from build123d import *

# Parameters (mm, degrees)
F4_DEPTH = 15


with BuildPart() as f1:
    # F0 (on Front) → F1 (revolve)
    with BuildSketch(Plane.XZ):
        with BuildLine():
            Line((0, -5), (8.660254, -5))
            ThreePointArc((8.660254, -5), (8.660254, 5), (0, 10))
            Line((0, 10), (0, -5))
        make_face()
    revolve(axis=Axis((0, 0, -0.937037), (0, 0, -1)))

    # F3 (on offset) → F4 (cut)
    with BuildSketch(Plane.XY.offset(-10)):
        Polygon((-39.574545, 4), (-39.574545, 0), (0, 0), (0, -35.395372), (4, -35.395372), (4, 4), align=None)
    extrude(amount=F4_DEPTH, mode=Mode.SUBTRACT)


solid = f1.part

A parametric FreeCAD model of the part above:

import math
import FreeCAD as App
import Part
import Sketcher


def add_polygon(sketch, points):
    """Adds a closed chain of lines whose ends are joined by coincident constraints."""
    first, n = sketch.GeometryCount, len(points)
    for a, b in zip(points, points[1:] + points[:1]):
        sketch.addGeometry(Part.LineSegment(App.Vector(*a, 0), App.Vector(*b, 0)), False)
    for i in range(n):
        sketch.addConstraint(Sketcher.Constraint("Coincident", first + i, 2, first + (i + 1) % n, 1))

doc = App.newDocument("Part")
params = doc.addObject("Spreadsheet::Sheet", "Params")
for row, (alias, value) in enumerate([
    ("sketch1_radius", "10 mm"),
    ("sketch1_height", "15 mm"),
    ("revolution_angle", "360 deg"),
    ("sketch2_width", "4 mm"),
    ("pocket1_length", "15 mm"),
], start=1):
    params.set(f"A{row}", alias)
    params.set(f"B{row}", "=" + value)
    params.setAlias(f"B{row}", alias)

body = doc.addObject("PartDesign::Body", "Body")

# Sketch on XZ plane
sketch1 = doc.addObject("Sketcher::SketchObject", "Sketch")
body.addObject(sketch1)
sketch1.AttachmentSupport = (doc.XZ_Plane, [""])
sketch1.MapMode = "FlatFace"
sketch1.addGeometry([
    Part.LineSegment(App.Vector(0, -5, 0), App.Vector(9, -5, 0)),
    Part.ArcOfCircle(Part.Circle(App.Vector(0, 0, 0), App.Vector(0, 0, 1), 10), math.radians(-30), math.radians(90)),
    Part.LineSegment(App.Vector(0, 10, 0), App.Vector(0, -5, 0)),
], False)
sketch1.addConstraint([
    Sketcher.Constraint("Coincident", 0, 2, 1, 1),
    Sketcher.Constraint("Coincident", 1, 2, 2, 1),
    Sketcher.Constraint("Coincident", 2, 2, 0, 1),
    Sketcher.Constraint("Horizontal", 0),
    Sketcher.Constraint("Vertical", 2),
    Sketcher.Constraint("Coincident", 1, 3, -1, 1),
    Sketcher.Constraint("PointOnObject", 1, 2, -2),
    Sketcher.Constraint("Radius", 1, 10.0),
    Sketcher.Constraint("DistanceY", 2, 2, 2, 1, 15.0),
])
sketch1.setExpression("Constraints[7]", "Params.sketch1_radius")
sketch1.setExpression("Constraints[8]", "Params.sketch1_height")
revolution = doc.addObject("PartDesign::Revolution", "Revolution")
body.addObject(revolution)
revolution.Profile = sketch1
revolution.ReferenceAxis = (sketch1, ["V_Axis"])
revolution.setExpression("Angle", "Params.revolution_angle")

# Sketch on XY plane
sketch2 = doc.addObject("Sketcher::SketchObject", "Sketch001")
body.addObject(sketch2)
sketch2.AttachmentSupport = (doc.XY_Plane, [""])
sketch2.MapMode = "FlatFace"
sketch2.AttachmentOffset = App.Placement(App.Vector(0, 0, -10), App.Rotation())
add_polygon(sketch2, [(-39.6, 4), (-39.6, 0), (0, 0), (0, -35.4), (4, -35.4), (4, 4)])  # lines 0-5
sketch2.addConstraint([
    Sketcher.Constraint("Vertical", 0),
    Sketcher.Constraint("Horizontal", 1),
    Sketcher.Constraint("Vertical", 2),
    Sketcher.Constraint("Horizontal", 3),
    Sketcher.Constraint("Vertical", 4),
    Sketcher.Constraint("Horizontal", 5),
    Sketcher.Constraint("Coincident", 1, 2, -1, 1),
    Sketcher.Constraint("Equal", 3, 0),
    Sketcher.Constraint("DistanceX", 3, 1, 3, 2, 4.0),
    Sketcher.Constraint("DistanceX", 1, 1, 1, 2, 39.574545),
    Sketcher.Constraint("DistanceY", 2, 2, 2, 1, 35.395372),
])
sketch2.setExpression("Constraints[14]", "Params.sketch2_width")
pocket1 = doc.addObject("PartDesign::Pocket", "Pocket")
body.addObject(pocket1)
pocket1.Profile = sketch2
pocket1.setExpression("Length", "Params.pocket1_length")
pocket1.Reversed = True

doc.recompute()
